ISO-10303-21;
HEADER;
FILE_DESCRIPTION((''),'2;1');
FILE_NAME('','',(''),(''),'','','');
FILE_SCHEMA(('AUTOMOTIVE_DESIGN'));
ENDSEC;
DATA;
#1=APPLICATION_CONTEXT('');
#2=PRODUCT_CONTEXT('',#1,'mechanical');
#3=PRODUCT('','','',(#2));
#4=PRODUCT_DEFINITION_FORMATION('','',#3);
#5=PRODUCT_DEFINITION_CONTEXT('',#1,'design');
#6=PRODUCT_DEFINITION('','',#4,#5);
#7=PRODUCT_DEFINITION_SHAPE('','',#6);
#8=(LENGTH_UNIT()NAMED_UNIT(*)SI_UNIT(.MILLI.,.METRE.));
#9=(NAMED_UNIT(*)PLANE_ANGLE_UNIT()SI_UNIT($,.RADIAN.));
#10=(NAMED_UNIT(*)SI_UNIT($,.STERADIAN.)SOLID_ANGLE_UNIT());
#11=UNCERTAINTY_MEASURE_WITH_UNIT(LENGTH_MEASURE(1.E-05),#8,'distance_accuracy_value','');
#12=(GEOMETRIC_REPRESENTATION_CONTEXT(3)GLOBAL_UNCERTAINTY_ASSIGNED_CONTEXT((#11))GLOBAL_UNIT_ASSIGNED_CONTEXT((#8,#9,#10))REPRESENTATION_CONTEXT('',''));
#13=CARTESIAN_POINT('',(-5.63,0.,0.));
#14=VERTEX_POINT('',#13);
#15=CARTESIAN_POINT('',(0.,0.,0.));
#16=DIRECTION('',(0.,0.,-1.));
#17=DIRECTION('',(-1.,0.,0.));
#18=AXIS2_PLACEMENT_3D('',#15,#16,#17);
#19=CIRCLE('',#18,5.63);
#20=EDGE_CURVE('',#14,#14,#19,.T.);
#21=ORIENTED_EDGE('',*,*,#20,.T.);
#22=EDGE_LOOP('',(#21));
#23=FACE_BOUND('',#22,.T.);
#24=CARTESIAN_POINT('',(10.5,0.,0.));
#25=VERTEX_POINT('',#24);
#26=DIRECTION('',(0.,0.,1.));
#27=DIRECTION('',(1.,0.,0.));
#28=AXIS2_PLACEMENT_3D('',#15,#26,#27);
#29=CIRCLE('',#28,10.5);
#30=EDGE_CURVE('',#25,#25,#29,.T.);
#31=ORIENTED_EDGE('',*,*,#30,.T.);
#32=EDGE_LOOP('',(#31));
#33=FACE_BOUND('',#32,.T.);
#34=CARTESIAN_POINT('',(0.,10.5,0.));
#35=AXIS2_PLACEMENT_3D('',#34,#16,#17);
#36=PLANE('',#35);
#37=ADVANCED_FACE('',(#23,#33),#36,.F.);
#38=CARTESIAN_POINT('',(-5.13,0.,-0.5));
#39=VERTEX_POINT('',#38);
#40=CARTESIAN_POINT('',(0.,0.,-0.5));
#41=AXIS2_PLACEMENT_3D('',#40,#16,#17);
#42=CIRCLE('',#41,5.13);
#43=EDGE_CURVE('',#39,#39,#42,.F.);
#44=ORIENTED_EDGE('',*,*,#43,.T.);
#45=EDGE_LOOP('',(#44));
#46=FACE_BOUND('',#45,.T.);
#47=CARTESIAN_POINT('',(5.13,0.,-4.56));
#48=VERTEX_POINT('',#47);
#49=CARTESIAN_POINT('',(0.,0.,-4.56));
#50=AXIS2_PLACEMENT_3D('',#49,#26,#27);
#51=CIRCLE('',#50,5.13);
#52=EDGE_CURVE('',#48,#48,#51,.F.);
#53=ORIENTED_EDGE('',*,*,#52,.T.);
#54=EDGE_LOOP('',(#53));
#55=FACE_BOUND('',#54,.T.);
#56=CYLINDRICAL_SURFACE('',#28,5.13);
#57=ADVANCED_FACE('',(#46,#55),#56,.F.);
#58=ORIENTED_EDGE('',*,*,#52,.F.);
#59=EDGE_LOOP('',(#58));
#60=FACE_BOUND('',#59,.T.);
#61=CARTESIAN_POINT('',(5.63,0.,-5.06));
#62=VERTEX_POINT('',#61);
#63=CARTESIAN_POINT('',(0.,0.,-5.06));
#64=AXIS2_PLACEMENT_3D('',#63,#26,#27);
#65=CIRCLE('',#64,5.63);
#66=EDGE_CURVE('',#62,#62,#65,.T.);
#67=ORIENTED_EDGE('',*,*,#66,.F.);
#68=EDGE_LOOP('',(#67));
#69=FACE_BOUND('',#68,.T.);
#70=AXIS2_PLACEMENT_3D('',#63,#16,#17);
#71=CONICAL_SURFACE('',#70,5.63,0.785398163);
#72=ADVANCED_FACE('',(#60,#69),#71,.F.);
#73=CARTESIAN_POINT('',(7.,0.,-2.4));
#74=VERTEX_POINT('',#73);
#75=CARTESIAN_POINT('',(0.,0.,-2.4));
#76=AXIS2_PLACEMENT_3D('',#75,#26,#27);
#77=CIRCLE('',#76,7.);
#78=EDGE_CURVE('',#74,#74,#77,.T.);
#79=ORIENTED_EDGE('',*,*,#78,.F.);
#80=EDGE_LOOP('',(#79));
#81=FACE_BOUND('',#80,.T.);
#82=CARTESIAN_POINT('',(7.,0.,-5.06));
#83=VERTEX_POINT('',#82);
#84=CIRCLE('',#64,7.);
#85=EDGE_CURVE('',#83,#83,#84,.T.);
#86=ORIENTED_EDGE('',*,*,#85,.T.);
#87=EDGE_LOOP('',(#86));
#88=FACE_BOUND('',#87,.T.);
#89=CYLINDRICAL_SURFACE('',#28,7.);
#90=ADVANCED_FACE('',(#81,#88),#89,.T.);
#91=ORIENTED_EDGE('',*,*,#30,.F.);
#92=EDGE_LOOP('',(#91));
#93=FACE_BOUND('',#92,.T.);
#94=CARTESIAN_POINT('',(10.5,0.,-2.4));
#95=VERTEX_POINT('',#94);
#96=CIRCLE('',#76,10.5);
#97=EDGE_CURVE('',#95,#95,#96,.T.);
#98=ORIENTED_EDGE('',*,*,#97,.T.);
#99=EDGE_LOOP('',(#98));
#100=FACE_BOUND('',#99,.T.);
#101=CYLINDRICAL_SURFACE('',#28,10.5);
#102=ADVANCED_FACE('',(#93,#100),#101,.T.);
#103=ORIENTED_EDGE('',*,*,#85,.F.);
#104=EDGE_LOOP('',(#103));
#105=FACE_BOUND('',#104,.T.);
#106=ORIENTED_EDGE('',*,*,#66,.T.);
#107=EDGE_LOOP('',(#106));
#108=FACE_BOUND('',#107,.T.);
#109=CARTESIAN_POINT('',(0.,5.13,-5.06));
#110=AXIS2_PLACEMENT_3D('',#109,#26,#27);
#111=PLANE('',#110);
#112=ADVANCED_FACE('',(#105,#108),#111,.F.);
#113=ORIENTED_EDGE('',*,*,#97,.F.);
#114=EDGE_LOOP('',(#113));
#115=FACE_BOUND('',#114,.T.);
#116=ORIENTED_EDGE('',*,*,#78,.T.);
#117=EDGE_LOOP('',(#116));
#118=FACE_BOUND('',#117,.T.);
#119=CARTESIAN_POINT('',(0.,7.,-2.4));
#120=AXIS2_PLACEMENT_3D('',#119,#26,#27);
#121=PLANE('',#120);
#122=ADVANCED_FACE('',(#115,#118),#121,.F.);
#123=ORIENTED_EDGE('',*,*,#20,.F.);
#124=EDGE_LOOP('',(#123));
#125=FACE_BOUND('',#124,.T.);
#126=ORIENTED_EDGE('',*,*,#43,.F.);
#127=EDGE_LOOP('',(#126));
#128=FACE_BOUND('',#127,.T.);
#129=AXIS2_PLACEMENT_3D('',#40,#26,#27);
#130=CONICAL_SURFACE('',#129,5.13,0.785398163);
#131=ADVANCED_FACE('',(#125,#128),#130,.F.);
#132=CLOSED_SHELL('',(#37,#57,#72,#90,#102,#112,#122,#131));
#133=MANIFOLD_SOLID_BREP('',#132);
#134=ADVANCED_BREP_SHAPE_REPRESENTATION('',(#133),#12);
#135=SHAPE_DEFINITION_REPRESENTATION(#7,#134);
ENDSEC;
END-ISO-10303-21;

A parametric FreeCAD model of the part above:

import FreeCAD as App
import Part
import Sketcher

V = App.Vector


def edges_at(feature, points):
    """Names of the edges that pass closest to the given points."""
    edges = feature.Shape.Edges
    near = lambda p: min(range(len(edges)), key=lambda i: edges[i].distToShape(Part.Vertex(*p))[0])
    return sorted({f"Edge{near(p) + 1}" for p in points})

doc = App.newDocument("Part")
params = doc.addObject("Spreadsheet::Sheet", "Params")
for row, (alias, value) in enumerate([
    ("sketch1_width", "3.5 mm"),
    ("sketch1_height", "2.4 mm"),
    ("sketch1_width2", "5.37 mm"),
    ("sketch1_height2", "5.06 mm"),
    ("revolution_angle", "360 deg"),
    ("chamfer_size", "0.5 mm"),
    ("chamfer2_size", "0.5 mm"),
], start=1):
    params.set(f"A{row}", alias)
    params.set(f"B{row}", "=" + value)
    params.setAlias(f"B{row}", alias)

body = doc.addObject("PartDesign::Body", "Body")

# Sketch on YZ plane
sketch1 = body.newObject("Sketcher::SketchObject", "Sketch")
sketch1.AttachmentSupport = (doc.getObject("YZ_Plane"), [""])
sketch1.MapMode = "FlatFace"
sketch1.addGeometry(Part.LineSegment(V(10.5, 0, 0), V(5.1, 0, 0)), False)
sketch1.addGeometry(Part.LineSegment(V(5.1, 0, 0), V(5.1, -5.1, 0)), False)
sketch1.addGeometry(Part.LineSegment(V(5.1, -5.1, 0), V(7, -5.1, 0)), False)
sketch1.addGeometry(Part.LineSegment(V(7, -5.1, 0), V(7, -2.4, 0)), False)
sketch1.addGeometry(Part.LineSegment(V(7, -2.4, 0), V(10.5, -2.4, 0)), False)
sketch1.addGeometry(Part.LineSegment(V(10.5, -2.4, 0), V(10.5, 0, 0)), False)
sketch1.addConstraint(Sketcher.Constraint("Coincident", 0, 2, 1, 1))
sketch1.addConstraint(Sketcher.Constraint("Coincident", 1, 2, 2, 1))
sketch1.addConstraint(Sketcher.Constraint("Coincident", 2, 2, 3, 1))
sketch1.addConstraint(Sketcher.Constraint("Coincident", 3, 2, 4, 1))
sketch1.addConstraint(Sketcher.Constraint("Coincident", 4, 2, 5, 1))
sketch1.addConstraint(Sketcher.Constraint("Coincident", 5, 2, 0, 1))
sketch1.addConstraint(Sketcher.Constraint("Horizontal", 0))
sketch1.addConstraint(Sketcher.Constraint("Vertical", 1))
sketch1.addConstraint(Sketcher.Constraint("Horizontal", 2))
sketch1.addConstraint(Sketcher.Constraint("Vertical", 3))
sketch1.addConstraint(Sketcher.Constraint("Horizontal", 4))
sketch1.addConstraint(Sketcher.Constraint("Vertical", 5))
sketch1.addConstraint(Sketcher.Constraint("PointOnObject", 0, 2, -1))
sketch1.addConstraint(Sketcher.Constraint("DistanceX", 4, 1, 4, 2, 3.5))
sketch1.addConstraint(Sketcher.Constraint("DistanceY", 5, 1, 5, 2, 2.4))
sketch1.addConstraint(Sketcher.Constraint("DistanceX", -1, 1, 2, 2, 7.0))
sketch1.addConstraint(Sketcher.Constraint("DistanceX", 0, 2, 0, 1, 5.37))
sketch1.addConstraint(Sketcher.Constraint("DistanceY", 1, 2, 1, 1, 5.06))
sketch1.setExpression("Constraints[13]", "Params.sketch1_width")
sketch1.setExpression("Constraints[14]", "Params.sketch1_height")
sketch1.setExpression("Constraints[16]", "Params.sketch1_width2")
sketch1.setExpression("Constraints[17]", "Params.sketch1_height2")
revolution = body.newObject("PartDesign::Revolution", "Revolution")
revolution.Profile = sketch1
revolution.ReferenceAxis = (sketch1, ["V_Axis"])
revolution.setExpression("Angle", "Params.revolution_angle")
doc.recompute()

chamfer = body.newObject("PartDesign::Chamfer", "Chamfer")
chamfer.Base = (revolution, edges_at(revolution, [(-5.13, 0, 0)]))
chamfer.setExpression("Size", "Params.chamfer_size")
doc.recompute()

chamfer2 = body.newObject("PartDesign::Chamfer", "Chamfer001")
chamfer2.Base = (chamfer, edges_at(chamfer, [(-5.13, 0, -5.06)]))
chamfer2.setExpression("Size", "Params.chamfer2_size")

doc.recompute()
